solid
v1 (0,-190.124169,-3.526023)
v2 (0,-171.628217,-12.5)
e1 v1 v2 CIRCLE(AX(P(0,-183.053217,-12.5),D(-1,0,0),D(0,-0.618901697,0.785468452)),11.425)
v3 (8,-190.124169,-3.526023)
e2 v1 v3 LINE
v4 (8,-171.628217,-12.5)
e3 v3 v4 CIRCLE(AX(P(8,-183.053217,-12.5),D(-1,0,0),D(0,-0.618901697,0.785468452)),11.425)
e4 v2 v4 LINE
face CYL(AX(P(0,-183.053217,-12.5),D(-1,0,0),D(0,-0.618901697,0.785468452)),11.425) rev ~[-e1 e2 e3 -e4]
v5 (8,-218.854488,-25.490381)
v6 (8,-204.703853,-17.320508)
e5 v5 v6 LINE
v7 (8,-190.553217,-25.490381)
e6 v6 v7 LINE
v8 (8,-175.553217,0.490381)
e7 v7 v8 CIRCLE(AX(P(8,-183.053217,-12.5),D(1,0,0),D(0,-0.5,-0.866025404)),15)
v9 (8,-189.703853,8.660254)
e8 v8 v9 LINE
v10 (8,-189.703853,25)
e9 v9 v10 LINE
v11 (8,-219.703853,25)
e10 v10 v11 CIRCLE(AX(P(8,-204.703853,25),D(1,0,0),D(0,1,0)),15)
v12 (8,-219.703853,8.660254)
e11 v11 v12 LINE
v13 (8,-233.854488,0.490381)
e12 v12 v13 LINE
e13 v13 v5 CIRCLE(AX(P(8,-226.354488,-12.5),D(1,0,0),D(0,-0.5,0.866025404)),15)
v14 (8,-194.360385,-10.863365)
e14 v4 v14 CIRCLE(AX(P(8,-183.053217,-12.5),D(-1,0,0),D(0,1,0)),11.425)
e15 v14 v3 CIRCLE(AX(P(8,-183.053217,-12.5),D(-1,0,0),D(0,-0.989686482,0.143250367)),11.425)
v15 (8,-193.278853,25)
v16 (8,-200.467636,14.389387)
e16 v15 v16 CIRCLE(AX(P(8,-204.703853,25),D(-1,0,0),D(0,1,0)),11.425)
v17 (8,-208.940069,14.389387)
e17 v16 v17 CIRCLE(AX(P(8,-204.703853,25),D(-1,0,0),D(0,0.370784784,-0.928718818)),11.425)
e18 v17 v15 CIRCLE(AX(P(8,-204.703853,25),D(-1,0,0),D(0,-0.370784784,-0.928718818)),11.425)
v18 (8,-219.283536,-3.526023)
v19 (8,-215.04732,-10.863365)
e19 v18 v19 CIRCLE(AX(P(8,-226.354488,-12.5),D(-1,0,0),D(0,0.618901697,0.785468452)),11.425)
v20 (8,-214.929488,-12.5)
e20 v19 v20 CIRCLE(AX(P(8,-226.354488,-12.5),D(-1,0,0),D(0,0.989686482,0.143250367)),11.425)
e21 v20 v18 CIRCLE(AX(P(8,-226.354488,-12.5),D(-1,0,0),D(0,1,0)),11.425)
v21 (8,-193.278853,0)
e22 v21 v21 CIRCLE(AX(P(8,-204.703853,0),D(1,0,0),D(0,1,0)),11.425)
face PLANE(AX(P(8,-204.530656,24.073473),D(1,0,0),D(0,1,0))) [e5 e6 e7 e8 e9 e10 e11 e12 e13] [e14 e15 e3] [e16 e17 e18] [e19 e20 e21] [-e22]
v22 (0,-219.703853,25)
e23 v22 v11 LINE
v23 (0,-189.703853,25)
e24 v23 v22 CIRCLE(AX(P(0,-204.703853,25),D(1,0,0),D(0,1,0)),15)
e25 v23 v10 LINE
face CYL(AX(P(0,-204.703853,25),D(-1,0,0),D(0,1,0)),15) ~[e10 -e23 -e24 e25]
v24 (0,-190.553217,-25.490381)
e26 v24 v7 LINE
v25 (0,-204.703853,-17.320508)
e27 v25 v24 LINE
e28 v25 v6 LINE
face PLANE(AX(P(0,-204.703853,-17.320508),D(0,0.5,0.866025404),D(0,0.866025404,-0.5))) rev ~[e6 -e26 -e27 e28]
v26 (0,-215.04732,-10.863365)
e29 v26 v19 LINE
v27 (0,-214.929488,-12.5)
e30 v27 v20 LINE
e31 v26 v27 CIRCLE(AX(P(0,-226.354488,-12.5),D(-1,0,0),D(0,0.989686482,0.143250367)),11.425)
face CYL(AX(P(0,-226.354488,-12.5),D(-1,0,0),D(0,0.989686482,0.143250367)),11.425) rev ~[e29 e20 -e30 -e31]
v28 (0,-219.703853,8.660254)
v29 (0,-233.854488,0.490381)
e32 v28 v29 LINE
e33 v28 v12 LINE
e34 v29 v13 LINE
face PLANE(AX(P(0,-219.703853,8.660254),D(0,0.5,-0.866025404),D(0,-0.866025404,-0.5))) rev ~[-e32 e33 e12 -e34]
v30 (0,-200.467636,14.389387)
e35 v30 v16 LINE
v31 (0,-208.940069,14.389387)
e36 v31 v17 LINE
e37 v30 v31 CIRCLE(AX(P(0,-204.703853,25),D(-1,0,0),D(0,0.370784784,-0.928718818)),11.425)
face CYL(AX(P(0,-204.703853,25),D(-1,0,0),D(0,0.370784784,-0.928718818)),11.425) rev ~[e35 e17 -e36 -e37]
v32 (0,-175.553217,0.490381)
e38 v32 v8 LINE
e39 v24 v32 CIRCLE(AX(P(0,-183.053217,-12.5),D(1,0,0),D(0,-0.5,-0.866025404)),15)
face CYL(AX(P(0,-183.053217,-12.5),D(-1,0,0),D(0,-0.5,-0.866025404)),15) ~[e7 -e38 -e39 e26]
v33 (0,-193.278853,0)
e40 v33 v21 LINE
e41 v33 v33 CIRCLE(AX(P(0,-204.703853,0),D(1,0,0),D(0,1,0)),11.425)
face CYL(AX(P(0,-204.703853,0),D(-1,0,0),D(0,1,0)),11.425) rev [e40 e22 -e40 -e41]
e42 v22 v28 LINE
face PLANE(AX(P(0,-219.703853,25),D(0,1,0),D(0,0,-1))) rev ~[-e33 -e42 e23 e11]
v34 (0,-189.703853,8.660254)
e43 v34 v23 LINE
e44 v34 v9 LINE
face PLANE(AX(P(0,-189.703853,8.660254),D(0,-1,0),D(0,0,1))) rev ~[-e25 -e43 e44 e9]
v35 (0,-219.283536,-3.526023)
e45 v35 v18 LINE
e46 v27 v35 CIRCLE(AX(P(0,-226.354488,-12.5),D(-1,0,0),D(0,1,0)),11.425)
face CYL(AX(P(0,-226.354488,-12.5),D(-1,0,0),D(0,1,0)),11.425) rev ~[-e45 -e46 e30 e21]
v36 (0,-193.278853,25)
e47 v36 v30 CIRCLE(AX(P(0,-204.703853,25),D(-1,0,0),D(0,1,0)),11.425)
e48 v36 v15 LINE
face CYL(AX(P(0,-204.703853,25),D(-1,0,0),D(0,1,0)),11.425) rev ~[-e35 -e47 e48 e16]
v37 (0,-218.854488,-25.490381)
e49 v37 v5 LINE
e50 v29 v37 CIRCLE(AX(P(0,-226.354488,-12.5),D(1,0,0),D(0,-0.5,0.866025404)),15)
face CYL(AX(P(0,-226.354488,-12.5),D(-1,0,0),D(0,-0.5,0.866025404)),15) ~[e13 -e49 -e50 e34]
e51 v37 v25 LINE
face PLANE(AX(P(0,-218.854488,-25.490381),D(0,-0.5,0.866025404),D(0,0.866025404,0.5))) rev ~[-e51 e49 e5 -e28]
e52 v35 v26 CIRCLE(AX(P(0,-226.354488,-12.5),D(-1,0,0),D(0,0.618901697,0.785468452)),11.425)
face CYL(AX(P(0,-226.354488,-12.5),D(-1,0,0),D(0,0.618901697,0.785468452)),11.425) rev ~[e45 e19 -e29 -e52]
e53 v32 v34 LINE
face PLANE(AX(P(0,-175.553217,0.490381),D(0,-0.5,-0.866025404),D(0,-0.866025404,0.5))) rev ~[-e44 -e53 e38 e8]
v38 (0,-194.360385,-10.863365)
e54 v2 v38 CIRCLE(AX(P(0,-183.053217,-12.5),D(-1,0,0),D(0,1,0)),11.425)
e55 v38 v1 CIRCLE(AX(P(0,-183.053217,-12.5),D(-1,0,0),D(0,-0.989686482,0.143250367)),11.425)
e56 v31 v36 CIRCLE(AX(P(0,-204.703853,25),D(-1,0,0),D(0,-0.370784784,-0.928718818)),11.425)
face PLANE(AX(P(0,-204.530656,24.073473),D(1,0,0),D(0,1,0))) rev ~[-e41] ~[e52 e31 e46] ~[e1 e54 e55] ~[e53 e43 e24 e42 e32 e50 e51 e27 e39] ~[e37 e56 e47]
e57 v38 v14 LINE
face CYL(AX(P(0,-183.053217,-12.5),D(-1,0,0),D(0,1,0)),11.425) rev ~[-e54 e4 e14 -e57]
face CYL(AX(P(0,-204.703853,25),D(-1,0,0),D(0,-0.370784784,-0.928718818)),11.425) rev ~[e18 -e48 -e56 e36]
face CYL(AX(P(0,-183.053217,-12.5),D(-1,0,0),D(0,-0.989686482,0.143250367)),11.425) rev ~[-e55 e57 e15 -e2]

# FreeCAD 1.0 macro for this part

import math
import FreeCAD as App
import Part
import Sketcher
from FreeCAD import Vector

doc = App.newDocument("Part")
params = doc.addObject("Spreadsheet::Sheet", "Params")
for row, (alias, value) in enumerate([
    ("sketch1_radius", "15 mm"),
    ("sketch1_diameter", "22.85 mm"),
    ("pad1_length", "8 mm"),
], start=1):
    params.set(f"A{row}", alias)
    params.set(f"B{row}", "=" + value)
    params.setAlias(f"B{row}", alias)

body = doc.addObject("PartDesign::Body", "Body")

# Sketch on YZ plane
sketch1 = doc.addObject("Sketcher::SketchObject", "Sketch")
body.addObject(sketch1)
sketch1.AttachmentSupport = (doc.YZ_Plane, [""])
sketch1.MapMode = "FlatFace"
sketch1.addGeometry(Part.LineSegment(Vector(-218.9, -25.5, 0), Vector(-204.7, -17.3, 0)), False)
sketch1.addGeometry(Part.LineSegment(Vector(-204.7, -17.3, 0), Vector(-190.6, -25.5, 0)), False)
sketch1.addGeometry(Part.ArcOfCircle(Part.Circle(Vector(-183.1, -12.5, 0), Vector(0, 0, 1), 15), math.radians(-120), math.radians(60)), False)
sketch1.addGeometry(Part.LineSegment(Vector(-175.6, 0.5, 0), Vector(-189.7, 8.7, 0)), False)
sketch1.addGeometry(Part.LineSegment(Vector(-189.7, 8.7, 0), Vector(-189.7, 25, 0)), False)
sketch1.addGeometry(Part.ArcOfCircle(Part.Circle(Vector(-204.7, 25, 0), Vector(0, 0, 1), 15), math.radians(0), math.radians(180)), False)
sketch1.addGeometry(Part.LineSegment(Vector(-219.7, 25, 0), Vector(-219.7, 8.7, 0)), False)
sketch1.addGeometry(Part.LineSegment(Vector(-219.7, 8.7, 0), Vector(-233.9, 0.5, 0)), False)
sketch1.addGeometry(Part.ArcOfCircle(Part.Circle(Vector(-226.4, -12.5, 0), Vector(0, 0, 1), 15), math.radians(120), math.radians(300)), False)
sketch1.addGeometry(Part.ArcOfCircle(Part.Circle(Vector(-226.4, -12.5, 0), Vector(0, 0, 1), 11.4), math.radians(0), math.radians(8.24)), False)
sketch1.addGeometry(Part.ArcOfCircle(Part.Circle(Vector(-226.4, -12.5, 0), Vector(0, 0, 1), 11.4), math.radians(52), math.radians(360)), False)
sketch1.addGeometry(Part.ArcOfCircle(Part.Circle(Vector(-226.4, -12.5, 0), Vector(0, 0, 1), 11.4), math.radians(8), math.radians(52)), False)
sketch1.addGeometry(Part.ArcOfCircle(Part.Circle(Vector(-183.1, -12.5, 0), Vector(0, 0, 1), 11.4), math.radians(0), math.radians(128)), False)
sketch1.addGeometry(Part.ArcOfCircle(Part.Circle(Vector(-183.1, -12.5, 0), Vector(0, 0, 1), 11.4), math.radians(172), math.radians(360)), False)
sketch1.addGeometry(Part.ArcOfCircle(Part.Circle(Vector(-183.1, -12.5, 0), Vector(0, 0, 1), 11.4), math.radians(128), math.radians(172)), False)
sketch1.addGeometry(Part.Circle(Vector(-204.7, 0, 0), Vector(0, 0, 1), 11.4), False)
sketch1.addGeometry(Part.ArcOfCircle(Part.Circle(Vector(-204.7, 25, 0), Vector(0, 0, 1), 11.4), math.radians(0), math.radians(248)), False)
sketch1.addGeometry(Part.ArcOfCircle(Part.Circle(Vector(-204.7, 25, 0), Vector(0, 0, 1), 11.4), math.radians(-68), math.radians(0)), False)
sketch1.addGeometry(Part.ArcOfCircle(Part.Circle(Vector(-204.7, 25, 0), Vector(0, 0, 1), 11.4), math.radians(-112), math.radians(-68)), False)
sketch1.addConstraint(Sketcher.Constraint("Coincident", 0, 2, 1, 1))
sketch1.addConstraint(Sketcher.Constraint("Tangent", 1, 2, 2, 1))
sketch1.addConstraint(Sketcher.Constraint("Tangent", 2, 2, 3, 1))
sketch1.addConstraint(Sketcher.Constraint("Coincident", 3, 2, 4, 1))
sketch1.addConstraint(Sketcher.Constraint("Tangent", 4, 2, 5, 1))
sketch1.addConstraint(Sketcher.Constraint("Tangent", 5, 2, 6, 1))
sketch1.addConstraint(Sketcher.Constraint("Coincident", 6, 2, 7, 1))
sketch1.addConstraint(Sketcher.Constraint("Tangent", 7, 2, 8, 1))
sketch1.addConstraint(Sketcher.Constraint("Tangent", 8, 2, 0, 1))
sketch1.addConstraint(Sketcher.Constraint("Tangent", 9, 1, 10, 2))
sketch1.addConstraint(Sketcher.Constraint("Tangent", 10, 1, 11, 2))
sketch1.addConstraint(Sketcher.Constraint("Tangent", 11, 1, 9, 2))
sketch1.addConstraint(Sketcher.Constraint("Tangent", 12, 1, 13, 2))
sketch1.addConstraint(Sketcher.Constraint("Tangent", 13, 1, 14, 2))
sketch1.addConstraint(Sketcher.Constraint("Tangent", 14, 1, 12, 2))
sketch1.addConstraint(Sketcher.Constraint("Tangent", 16, 1, 17, 2))
sketch1.addConstraint(Sketcher.Constraint("Tangent", 17, 1, 18, 2))
sketch1.addConstraint(Sketcher.Constraint("Tangent", 18, 1, 16, 2))
sketch1.addConstraint(Sketcher.Constraint("Vertical", 4))
sketch1.addConstraint(Sketcher.Constraint("Vertical", 6))
sketch1.addConstraint(Sketcher.Constraint("Coincident", 9, 3, 8, 3))
sketch1.addConstraint(Sketcher.Constraint("Coincident", 12, 3, 2, 3))
sketch1.addConstraint(Sketcher.Constraint("Coincident", 16, 3, 5, 3))
sketch1.addConstraint(Sketcher.Constraint("Equal", 2, 5))
sketch1.addConstraint(Sketcher.Constraint("Equal", 5, 8))
sketch1.addConstraint(Sketcher.Constraint("Equal", 11, 12))
sketch1.addConstraint(Sketcher.Constraint("Equal", 14, 15))
sketch1.addConstraint(Sketcher.Constraint("Equal", 15, 16))
sketch1.addConstraint(Sketcher.Constraint("PointOnObject", 15, 3, -1))
sketch1.addConstraint(Sketcher.Constraint("Parallel", 1, 3))
sketch1.addConstraint(Sketcher.Constraint("Parallel", 0, 7))
sketch1.addConstraint(Sketcher.Constraint("Horizontal", 2, 3, 8, 3))
sketch1.addConstraint(Sketcher.Constraint("Horizontal", 3, 2, 6, 2))
sketch1.addConstraint(Sketcher.Constraint("Horizontal", 2, 2, 7, 2))
sketch1.addConstraint(Sketcher.Constraint("Horizontal", 14, 3, 9, 1))
sketch1.addConstraint(Sketcher.Constraint("Horizontal", 9, 1, 12, 1))
sketch1.addConstraint(Sketcher.Constraint("Horizontal", 11, 1, 13, 1))
sketch1.addConstraint(Sketcher.Constraint("Horizontal", 10, 1, 14, 1))
sketch1.addConstraint(Sketcher.Constraint("Horizontal", 5, 2, 16, 1))
sketch1.addConstraint(Sketcher.Constraint("Horizontal", 17, 1, 18, 1))
sketch1.addConstraint(Sketcher.Constraint("Vertical", 5, 3, 15, 3))
sketch1.addConstraint(Sketcher.Constraint("Equal", 1, 3))
sketch1.addConstraint(Sketcher.Constraint("Radius", 2, 15.0))
sketch1.addConstraint(Sketcher.Constraint("Diameter", 15, 22.85))
sketch1.addConstraint(Sketcher.Constraint("DistanceY", -1, 1, 5, 3, 25.0))
sketch1.addConstraint(Sketcher.Constraint("DistanceY", 2, 3, -1, 1, 12.5))
sketch1.addConstraint(Sketcher.Constraint("DistanceY", 4, 1, 4, 2, 16.339746))
sketch1.addConstraint(Sketcher.Constraint("DistanceX", 11, 1, -1, 1, 215.04732))
sketch1.addConstraint(Sketcher.Constraint("DistanceX", 14, 1, -1, 1, 190.124169))
sketch1.addConstraint(Sketcher.Constraint("DistanceX", 18, 1, -1, 1, 208.940069))
sketch1.addConstraint(Sketcher.Constraint("DistanceX", 10, 1, 9, 1, 4.354048))
sketch1.setExpression("Constraints[42]", "Params.sketch1_radius")
sketch1.setExpression("Constraints[43]", "Params.sketch1_diameter")
pad1 = doc.addObject("PartDesign::Pad", "Pad")
body.addObject(pad1)
pad1.Profile = sketch1
pad1.setExpression("Length", "Params.pad1_length")

doc.recompute()
